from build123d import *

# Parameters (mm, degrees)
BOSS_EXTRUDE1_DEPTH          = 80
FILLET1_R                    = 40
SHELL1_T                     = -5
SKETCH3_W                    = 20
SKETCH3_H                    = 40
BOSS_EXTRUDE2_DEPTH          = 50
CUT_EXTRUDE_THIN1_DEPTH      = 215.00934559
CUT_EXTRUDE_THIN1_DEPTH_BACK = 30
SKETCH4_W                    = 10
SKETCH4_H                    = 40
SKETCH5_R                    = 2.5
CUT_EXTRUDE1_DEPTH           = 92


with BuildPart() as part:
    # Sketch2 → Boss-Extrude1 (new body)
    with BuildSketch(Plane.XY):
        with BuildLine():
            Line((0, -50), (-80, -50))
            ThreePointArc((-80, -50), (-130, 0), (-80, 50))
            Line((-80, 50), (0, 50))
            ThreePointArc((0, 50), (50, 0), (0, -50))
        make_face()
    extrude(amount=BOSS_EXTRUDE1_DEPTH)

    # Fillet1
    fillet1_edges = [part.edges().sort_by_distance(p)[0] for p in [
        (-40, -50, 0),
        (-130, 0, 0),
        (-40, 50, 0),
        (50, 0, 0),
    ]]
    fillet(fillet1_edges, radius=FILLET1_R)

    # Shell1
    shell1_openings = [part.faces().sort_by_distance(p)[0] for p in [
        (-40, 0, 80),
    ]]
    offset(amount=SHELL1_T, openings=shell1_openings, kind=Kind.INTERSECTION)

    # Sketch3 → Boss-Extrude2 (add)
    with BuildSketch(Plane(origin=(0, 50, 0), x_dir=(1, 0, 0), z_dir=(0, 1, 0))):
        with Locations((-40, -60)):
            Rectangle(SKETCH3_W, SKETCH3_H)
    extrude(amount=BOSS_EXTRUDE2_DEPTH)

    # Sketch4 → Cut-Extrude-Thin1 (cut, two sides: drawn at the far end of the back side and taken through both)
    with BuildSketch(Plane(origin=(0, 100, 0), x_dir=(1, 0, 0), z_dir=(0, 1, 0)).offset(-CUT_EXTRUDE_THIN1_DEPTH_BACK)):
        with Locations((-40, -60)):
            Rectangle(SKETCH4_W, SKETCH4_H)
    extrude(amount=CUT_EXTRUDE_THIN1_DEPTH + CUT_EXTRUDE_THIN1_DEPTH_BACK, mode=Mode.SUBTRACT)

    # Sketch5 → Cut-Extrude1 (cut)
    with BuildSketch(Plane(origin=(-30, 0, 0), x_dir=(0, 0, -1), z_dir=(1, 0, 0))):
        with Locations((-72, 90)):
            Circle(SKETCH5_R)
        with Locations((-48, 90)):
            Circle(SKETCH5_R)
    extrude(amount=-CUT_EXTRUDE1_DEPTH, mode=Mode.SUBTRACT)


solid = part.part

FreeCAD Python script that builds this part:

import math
import FreeCAD as App
import Part
import Sketcher
from FreeCAD import Vector
Q = App.Units.Quantity


def edges_at(feature, points):
    """Names of the edges that pass closest to the given points."""
    edges = feature.Shape.Edges
    near = lambda p: min(range(len(edges)), key=lambda i: edges[i].distToShape(Part.Vertex(*p))[0])
    return sorted({f"Edge{near(p) + 1}" for p in points})


def faces_at(feature, points):
    """Names of the faces that lie closest to the given points."""
    faces = feature.Shape.Faces
    near = lambda p: min(range(len(faces)), key=lambda i: faces[i].distToShape(Part.Vertex(*p))[0])
    return sorted({f"Face{near(p) + 1}" for p in points})

doc = App.newDocument("Part")
body = doc.addObject("PartDesign::Body", "Body")

# Sketch on XY plane
sketch1 = body.newObject("Sketcher::SketchObject", "Sketch")
sketch1.AttachmentSupport = (doc.getObject("XY_Plane"), [""])
sketch1.MapMode = "FlatFace"
sketch1.addGeometry(Part.LineSegment(Vector(-80, -50, 0), Vector(0, -50, 0)), False)
sketch1.addGeometry(Part.ArcOfCircle(Part.Circle(Vector(0, 0, 0), Vector(0, 0, 1), 50), math.radians(-90), math.radians(90)), False)
sketch1.addGeometry(Part.LineSegment(Vector(0, 50, 0), Vector(-80, 50, 0)), False)
sketch1.addGeometry(Part.ArcOfCircle(Part.Circle(Vector(-80, 0, 0), Vector(0, 0, 1), 50), math.radians(90), math.radians(270)), False)
sketch1.addConstraint(Sketcher.Constraint("Tangent", 0, 2, 1, 1))
sketch1.addConstraint(Sketcher.Constraint("Tangent", 1, 2, 2, 1))
sketch1.addConstraint(Sketcher.Constraint("Tangent", 2, 2, 3, 1))
sketch1.addConstraint(Sketcher.Constraint("Tangent", 3, 2, 0, 1))
sketch1.addConstraint(Sketcher.Constraint("Horizontal", 0))
sketch1.addConstraint(Sketcher.Constraint("Horizontal", 2))
sketch1.addConstraint(Sketcher.Constraint("Coincident", 1, 3, -1, 1))
sketch1.addConstraint(Sketcher.Constraint("Radius", 1, Q("50 mm")))
sketch1.addConstraint(Sketcher.Constraint("DistanceX", 0, 1, 0, 2, Q("80 mm")))
pad1 = body.newObject("PartDesign::Pad", "Pad")
pad1.Profile = sketch1
pad1.Length = 80
doc.recompute()

fillet = body.newObject("PartDesign::Fillet", "Fillet")
fillet.Base = (pad1, edges_at(pad1, [
    (-40, -50, 0),
    (-130, 0, 0),
    (-40, 50, 0),
    (50, 0, 0),
]))
fillet.Radius = 40
doc.recompute()

thickness = body.newObject("PartDesign::Thickness", "Thickness")
thickness.Base = (fillet, faces_at(fillet, [(-40, 0, 80)]))
thickness.Value = 5
thickness.Reversed = True
thickness.Join = "Intersection"

# Sketch on XZ plane
sketch2 = body.newObject("Sketcher::SketchObject", "Sketch001")
sketch2.AttachmentSupport = (doc.getObject("XZ_Plane"), [""])
sketch2.MapMode = "FlatFace"
sketch2.AttachmentOffset = App.Placement(Vector(0, 0, -50), App.Rotation())
sketch2.addGeometry(Part.LineSegment(Vector(-50, 40, 0), Vector(-50, 80, 0)), False)
sketch2.addGeometry(Part.LineSegment(Vector(-50, 80, 0), Vector(-30, 80, 0)), False)
sketch2.addGeometry(Part.LineSegment(Vector(-30, 80, 0), Vector(-30, 40, 0)), False)
sketch2.addGeometry(Part.LineSegment(Vector(-30, 40, 0), Vector(-50, 40, 0)), False)
sketch2.addConstraint(Sketcher.Constraint("Coincident", 0, 2, 1, 1))
sketch2.addConstraint(Sketcher.Constraint("Coincident", 1, 2, 2, 1))
sketch2.addConstraint(Sketcher.Constraint("Coincident", 2, 2, 3, 1))
sketch2.addConstraint(Sketcher.Constraint("Coincident", 3, 2, 0, 1))
sketch2.addConstraint(Sketcher.Constraint("Vertical", 0))
sketch2.addConstraint(Sketcher.Constraint("Horizontal", 1))
sketch2.addConstraint(Sketcher.Constraint("Vertical", 2))
sketch2.addConstraint(Sketcher.Constraint("Horizontal", 3))
sketch2.addConstraint(Sketcher.Constraint("DistanceX", 1, 1, 1, 2, Q("20 mm")))
sketch2.addConstraint(Sketcher.Constraint("DistanceY", 0, 1, 0, 2, Q("40 mm")))
sketch2.addConstraint(Sketcher.Constraint("DistanceX", 0, 2, -1, 1, Q("50 mm")))
sketch2.addConstraint(Sketcher.Constraint("DistanceY", -1, 1, 0, 2, Q("80 mm")))
pad2 = body.newObject("PartDesign::Pad", "Pad001")
pad2.Profile = sketch2
pad2.Length = 50
pad2.Reversed = True

# Sketch on XZ plane
sketch3 = body.newObject("Sketcher::SketchObject", "Sketch002")
sketch3.AttachmentSupport = (doc.getObject("XZ_Plane"), [""])
sketch3.MapMode = "FlatFace"
sketch3.AttachmentOffset = App.Placement(Vector(0, 0, -100), App.Rotation())
sketch3.addGeometry(Part.LineSegment(Vector(-45, 40, 0), Vector(-45, 80, 0)), False)
sketch3.addGeometry(Part.LineSegment(Vector(-45, 80, 0), Vector(-35, 80, 0)), False)
sketch3.addGeometry(Part.LineSegment(Vector(-35, 80, 0), Vector(-35, 40, 0)), False)
sketch3.addGeometry(Part.LineSegment(Vector(-35, 40, 0), Vector(-45, 40, 0)), False)
sketch3.addConstraint(Sketcher.Constraint("Coincident", 0, 2, 1, 1))
sketch3.addConstraint(Sketcher.Constraint("Coincident", 1, 2, 2, 1))
sketch3.addConstraint(Sketcher.Constraint("Coincident", 2, 2, 3, 1))
sketch3.addConstraint(Sketcher.Constraint("Coincident", 3, 2, 0, 1))
sketch3.addConstraint(Sketcher.Constraint("Vertical", 0))
sketch3.addConstraint(Sketcher.Constraint("Horizontal", 1))
sketch3.addConstraint(Sketcher.Constraint("Vertical", 2))
sketch3.addConstraint(Sketcher.Constraint("Horizontal", 3))
sketch3.addConstraint(Sketcher.Constraint("DistanceX", 1, 1, 1, 2, Q("10 mm")))
sketch3.addConstraint(Sketcher.Constraint("DistanceY", 0, 1, 0, 2, Q("40 mm")))
sketch3.addConstraint(Sketcher.Constraint("DistanceX", 0, 2, -1, 1, Q("45 mm")))
sketch3.addConstraint(Sketcher.Constraint("DistanceY", -1, 1, 0, 2, Q("80 mm")))
pocket1 = body.newObject("PartDesign::Pocket", "Pocket")
pocket1.Profile = sketch3
pocket1.Type = "TwoLengths"
pocket1.Length = 215.009346
pocket1.Length2 = 30

# Sketch on YZ plane
sketch4 = body.newObject("Sketcher::SketchObject", "Sketch003")
sketch4.AttachmentSupport = (doc.getObject("YZ_Plane"), [""])
sketch4.MapMode = "FlatFace"
sketch4.AttachmentOffset = App.Placement(Vector(0, 0, -30), App.Rotation())
sketch4.addGeometry(Part.Circle(Vector(90, 72, 0), Vector(0, 0, 1), 2.5), False)
sketch4.addGeometry(Part.Circle(Vector(90, 48, 0), Vector(0, 0, 1), 2.5), False)
sketch4.addConstraint(Sketcher.Constraint("Equal", 0, 1))
sketch4.addConstraint(Sketcher.Constraint("Vertical", 0, 3, 1, 3))
sketch4.addConstraint(Sketcher.Constraint("Diameter", 0, Q("5 mm")))
sketch4.addConstraint(Sketcher.Constraint("DistanceX", -1, 1, 0, 3, Q("90 mm")))
sketch4.addConstraint(Sketcher.Constraint("DistanceY", -1, 1, 0, 3, Q("72 mm")))
sketch4.addConstraint(Sketcher.Constraint("DistanceY", -1, 1, 1, 3, Q("48 mm")))
pocket2 = body.newObject("PartDesign::Pocket", "Pocket001")
pocket2.Profile = sketch4
pocket2.Length = 92

doc.recompute()
